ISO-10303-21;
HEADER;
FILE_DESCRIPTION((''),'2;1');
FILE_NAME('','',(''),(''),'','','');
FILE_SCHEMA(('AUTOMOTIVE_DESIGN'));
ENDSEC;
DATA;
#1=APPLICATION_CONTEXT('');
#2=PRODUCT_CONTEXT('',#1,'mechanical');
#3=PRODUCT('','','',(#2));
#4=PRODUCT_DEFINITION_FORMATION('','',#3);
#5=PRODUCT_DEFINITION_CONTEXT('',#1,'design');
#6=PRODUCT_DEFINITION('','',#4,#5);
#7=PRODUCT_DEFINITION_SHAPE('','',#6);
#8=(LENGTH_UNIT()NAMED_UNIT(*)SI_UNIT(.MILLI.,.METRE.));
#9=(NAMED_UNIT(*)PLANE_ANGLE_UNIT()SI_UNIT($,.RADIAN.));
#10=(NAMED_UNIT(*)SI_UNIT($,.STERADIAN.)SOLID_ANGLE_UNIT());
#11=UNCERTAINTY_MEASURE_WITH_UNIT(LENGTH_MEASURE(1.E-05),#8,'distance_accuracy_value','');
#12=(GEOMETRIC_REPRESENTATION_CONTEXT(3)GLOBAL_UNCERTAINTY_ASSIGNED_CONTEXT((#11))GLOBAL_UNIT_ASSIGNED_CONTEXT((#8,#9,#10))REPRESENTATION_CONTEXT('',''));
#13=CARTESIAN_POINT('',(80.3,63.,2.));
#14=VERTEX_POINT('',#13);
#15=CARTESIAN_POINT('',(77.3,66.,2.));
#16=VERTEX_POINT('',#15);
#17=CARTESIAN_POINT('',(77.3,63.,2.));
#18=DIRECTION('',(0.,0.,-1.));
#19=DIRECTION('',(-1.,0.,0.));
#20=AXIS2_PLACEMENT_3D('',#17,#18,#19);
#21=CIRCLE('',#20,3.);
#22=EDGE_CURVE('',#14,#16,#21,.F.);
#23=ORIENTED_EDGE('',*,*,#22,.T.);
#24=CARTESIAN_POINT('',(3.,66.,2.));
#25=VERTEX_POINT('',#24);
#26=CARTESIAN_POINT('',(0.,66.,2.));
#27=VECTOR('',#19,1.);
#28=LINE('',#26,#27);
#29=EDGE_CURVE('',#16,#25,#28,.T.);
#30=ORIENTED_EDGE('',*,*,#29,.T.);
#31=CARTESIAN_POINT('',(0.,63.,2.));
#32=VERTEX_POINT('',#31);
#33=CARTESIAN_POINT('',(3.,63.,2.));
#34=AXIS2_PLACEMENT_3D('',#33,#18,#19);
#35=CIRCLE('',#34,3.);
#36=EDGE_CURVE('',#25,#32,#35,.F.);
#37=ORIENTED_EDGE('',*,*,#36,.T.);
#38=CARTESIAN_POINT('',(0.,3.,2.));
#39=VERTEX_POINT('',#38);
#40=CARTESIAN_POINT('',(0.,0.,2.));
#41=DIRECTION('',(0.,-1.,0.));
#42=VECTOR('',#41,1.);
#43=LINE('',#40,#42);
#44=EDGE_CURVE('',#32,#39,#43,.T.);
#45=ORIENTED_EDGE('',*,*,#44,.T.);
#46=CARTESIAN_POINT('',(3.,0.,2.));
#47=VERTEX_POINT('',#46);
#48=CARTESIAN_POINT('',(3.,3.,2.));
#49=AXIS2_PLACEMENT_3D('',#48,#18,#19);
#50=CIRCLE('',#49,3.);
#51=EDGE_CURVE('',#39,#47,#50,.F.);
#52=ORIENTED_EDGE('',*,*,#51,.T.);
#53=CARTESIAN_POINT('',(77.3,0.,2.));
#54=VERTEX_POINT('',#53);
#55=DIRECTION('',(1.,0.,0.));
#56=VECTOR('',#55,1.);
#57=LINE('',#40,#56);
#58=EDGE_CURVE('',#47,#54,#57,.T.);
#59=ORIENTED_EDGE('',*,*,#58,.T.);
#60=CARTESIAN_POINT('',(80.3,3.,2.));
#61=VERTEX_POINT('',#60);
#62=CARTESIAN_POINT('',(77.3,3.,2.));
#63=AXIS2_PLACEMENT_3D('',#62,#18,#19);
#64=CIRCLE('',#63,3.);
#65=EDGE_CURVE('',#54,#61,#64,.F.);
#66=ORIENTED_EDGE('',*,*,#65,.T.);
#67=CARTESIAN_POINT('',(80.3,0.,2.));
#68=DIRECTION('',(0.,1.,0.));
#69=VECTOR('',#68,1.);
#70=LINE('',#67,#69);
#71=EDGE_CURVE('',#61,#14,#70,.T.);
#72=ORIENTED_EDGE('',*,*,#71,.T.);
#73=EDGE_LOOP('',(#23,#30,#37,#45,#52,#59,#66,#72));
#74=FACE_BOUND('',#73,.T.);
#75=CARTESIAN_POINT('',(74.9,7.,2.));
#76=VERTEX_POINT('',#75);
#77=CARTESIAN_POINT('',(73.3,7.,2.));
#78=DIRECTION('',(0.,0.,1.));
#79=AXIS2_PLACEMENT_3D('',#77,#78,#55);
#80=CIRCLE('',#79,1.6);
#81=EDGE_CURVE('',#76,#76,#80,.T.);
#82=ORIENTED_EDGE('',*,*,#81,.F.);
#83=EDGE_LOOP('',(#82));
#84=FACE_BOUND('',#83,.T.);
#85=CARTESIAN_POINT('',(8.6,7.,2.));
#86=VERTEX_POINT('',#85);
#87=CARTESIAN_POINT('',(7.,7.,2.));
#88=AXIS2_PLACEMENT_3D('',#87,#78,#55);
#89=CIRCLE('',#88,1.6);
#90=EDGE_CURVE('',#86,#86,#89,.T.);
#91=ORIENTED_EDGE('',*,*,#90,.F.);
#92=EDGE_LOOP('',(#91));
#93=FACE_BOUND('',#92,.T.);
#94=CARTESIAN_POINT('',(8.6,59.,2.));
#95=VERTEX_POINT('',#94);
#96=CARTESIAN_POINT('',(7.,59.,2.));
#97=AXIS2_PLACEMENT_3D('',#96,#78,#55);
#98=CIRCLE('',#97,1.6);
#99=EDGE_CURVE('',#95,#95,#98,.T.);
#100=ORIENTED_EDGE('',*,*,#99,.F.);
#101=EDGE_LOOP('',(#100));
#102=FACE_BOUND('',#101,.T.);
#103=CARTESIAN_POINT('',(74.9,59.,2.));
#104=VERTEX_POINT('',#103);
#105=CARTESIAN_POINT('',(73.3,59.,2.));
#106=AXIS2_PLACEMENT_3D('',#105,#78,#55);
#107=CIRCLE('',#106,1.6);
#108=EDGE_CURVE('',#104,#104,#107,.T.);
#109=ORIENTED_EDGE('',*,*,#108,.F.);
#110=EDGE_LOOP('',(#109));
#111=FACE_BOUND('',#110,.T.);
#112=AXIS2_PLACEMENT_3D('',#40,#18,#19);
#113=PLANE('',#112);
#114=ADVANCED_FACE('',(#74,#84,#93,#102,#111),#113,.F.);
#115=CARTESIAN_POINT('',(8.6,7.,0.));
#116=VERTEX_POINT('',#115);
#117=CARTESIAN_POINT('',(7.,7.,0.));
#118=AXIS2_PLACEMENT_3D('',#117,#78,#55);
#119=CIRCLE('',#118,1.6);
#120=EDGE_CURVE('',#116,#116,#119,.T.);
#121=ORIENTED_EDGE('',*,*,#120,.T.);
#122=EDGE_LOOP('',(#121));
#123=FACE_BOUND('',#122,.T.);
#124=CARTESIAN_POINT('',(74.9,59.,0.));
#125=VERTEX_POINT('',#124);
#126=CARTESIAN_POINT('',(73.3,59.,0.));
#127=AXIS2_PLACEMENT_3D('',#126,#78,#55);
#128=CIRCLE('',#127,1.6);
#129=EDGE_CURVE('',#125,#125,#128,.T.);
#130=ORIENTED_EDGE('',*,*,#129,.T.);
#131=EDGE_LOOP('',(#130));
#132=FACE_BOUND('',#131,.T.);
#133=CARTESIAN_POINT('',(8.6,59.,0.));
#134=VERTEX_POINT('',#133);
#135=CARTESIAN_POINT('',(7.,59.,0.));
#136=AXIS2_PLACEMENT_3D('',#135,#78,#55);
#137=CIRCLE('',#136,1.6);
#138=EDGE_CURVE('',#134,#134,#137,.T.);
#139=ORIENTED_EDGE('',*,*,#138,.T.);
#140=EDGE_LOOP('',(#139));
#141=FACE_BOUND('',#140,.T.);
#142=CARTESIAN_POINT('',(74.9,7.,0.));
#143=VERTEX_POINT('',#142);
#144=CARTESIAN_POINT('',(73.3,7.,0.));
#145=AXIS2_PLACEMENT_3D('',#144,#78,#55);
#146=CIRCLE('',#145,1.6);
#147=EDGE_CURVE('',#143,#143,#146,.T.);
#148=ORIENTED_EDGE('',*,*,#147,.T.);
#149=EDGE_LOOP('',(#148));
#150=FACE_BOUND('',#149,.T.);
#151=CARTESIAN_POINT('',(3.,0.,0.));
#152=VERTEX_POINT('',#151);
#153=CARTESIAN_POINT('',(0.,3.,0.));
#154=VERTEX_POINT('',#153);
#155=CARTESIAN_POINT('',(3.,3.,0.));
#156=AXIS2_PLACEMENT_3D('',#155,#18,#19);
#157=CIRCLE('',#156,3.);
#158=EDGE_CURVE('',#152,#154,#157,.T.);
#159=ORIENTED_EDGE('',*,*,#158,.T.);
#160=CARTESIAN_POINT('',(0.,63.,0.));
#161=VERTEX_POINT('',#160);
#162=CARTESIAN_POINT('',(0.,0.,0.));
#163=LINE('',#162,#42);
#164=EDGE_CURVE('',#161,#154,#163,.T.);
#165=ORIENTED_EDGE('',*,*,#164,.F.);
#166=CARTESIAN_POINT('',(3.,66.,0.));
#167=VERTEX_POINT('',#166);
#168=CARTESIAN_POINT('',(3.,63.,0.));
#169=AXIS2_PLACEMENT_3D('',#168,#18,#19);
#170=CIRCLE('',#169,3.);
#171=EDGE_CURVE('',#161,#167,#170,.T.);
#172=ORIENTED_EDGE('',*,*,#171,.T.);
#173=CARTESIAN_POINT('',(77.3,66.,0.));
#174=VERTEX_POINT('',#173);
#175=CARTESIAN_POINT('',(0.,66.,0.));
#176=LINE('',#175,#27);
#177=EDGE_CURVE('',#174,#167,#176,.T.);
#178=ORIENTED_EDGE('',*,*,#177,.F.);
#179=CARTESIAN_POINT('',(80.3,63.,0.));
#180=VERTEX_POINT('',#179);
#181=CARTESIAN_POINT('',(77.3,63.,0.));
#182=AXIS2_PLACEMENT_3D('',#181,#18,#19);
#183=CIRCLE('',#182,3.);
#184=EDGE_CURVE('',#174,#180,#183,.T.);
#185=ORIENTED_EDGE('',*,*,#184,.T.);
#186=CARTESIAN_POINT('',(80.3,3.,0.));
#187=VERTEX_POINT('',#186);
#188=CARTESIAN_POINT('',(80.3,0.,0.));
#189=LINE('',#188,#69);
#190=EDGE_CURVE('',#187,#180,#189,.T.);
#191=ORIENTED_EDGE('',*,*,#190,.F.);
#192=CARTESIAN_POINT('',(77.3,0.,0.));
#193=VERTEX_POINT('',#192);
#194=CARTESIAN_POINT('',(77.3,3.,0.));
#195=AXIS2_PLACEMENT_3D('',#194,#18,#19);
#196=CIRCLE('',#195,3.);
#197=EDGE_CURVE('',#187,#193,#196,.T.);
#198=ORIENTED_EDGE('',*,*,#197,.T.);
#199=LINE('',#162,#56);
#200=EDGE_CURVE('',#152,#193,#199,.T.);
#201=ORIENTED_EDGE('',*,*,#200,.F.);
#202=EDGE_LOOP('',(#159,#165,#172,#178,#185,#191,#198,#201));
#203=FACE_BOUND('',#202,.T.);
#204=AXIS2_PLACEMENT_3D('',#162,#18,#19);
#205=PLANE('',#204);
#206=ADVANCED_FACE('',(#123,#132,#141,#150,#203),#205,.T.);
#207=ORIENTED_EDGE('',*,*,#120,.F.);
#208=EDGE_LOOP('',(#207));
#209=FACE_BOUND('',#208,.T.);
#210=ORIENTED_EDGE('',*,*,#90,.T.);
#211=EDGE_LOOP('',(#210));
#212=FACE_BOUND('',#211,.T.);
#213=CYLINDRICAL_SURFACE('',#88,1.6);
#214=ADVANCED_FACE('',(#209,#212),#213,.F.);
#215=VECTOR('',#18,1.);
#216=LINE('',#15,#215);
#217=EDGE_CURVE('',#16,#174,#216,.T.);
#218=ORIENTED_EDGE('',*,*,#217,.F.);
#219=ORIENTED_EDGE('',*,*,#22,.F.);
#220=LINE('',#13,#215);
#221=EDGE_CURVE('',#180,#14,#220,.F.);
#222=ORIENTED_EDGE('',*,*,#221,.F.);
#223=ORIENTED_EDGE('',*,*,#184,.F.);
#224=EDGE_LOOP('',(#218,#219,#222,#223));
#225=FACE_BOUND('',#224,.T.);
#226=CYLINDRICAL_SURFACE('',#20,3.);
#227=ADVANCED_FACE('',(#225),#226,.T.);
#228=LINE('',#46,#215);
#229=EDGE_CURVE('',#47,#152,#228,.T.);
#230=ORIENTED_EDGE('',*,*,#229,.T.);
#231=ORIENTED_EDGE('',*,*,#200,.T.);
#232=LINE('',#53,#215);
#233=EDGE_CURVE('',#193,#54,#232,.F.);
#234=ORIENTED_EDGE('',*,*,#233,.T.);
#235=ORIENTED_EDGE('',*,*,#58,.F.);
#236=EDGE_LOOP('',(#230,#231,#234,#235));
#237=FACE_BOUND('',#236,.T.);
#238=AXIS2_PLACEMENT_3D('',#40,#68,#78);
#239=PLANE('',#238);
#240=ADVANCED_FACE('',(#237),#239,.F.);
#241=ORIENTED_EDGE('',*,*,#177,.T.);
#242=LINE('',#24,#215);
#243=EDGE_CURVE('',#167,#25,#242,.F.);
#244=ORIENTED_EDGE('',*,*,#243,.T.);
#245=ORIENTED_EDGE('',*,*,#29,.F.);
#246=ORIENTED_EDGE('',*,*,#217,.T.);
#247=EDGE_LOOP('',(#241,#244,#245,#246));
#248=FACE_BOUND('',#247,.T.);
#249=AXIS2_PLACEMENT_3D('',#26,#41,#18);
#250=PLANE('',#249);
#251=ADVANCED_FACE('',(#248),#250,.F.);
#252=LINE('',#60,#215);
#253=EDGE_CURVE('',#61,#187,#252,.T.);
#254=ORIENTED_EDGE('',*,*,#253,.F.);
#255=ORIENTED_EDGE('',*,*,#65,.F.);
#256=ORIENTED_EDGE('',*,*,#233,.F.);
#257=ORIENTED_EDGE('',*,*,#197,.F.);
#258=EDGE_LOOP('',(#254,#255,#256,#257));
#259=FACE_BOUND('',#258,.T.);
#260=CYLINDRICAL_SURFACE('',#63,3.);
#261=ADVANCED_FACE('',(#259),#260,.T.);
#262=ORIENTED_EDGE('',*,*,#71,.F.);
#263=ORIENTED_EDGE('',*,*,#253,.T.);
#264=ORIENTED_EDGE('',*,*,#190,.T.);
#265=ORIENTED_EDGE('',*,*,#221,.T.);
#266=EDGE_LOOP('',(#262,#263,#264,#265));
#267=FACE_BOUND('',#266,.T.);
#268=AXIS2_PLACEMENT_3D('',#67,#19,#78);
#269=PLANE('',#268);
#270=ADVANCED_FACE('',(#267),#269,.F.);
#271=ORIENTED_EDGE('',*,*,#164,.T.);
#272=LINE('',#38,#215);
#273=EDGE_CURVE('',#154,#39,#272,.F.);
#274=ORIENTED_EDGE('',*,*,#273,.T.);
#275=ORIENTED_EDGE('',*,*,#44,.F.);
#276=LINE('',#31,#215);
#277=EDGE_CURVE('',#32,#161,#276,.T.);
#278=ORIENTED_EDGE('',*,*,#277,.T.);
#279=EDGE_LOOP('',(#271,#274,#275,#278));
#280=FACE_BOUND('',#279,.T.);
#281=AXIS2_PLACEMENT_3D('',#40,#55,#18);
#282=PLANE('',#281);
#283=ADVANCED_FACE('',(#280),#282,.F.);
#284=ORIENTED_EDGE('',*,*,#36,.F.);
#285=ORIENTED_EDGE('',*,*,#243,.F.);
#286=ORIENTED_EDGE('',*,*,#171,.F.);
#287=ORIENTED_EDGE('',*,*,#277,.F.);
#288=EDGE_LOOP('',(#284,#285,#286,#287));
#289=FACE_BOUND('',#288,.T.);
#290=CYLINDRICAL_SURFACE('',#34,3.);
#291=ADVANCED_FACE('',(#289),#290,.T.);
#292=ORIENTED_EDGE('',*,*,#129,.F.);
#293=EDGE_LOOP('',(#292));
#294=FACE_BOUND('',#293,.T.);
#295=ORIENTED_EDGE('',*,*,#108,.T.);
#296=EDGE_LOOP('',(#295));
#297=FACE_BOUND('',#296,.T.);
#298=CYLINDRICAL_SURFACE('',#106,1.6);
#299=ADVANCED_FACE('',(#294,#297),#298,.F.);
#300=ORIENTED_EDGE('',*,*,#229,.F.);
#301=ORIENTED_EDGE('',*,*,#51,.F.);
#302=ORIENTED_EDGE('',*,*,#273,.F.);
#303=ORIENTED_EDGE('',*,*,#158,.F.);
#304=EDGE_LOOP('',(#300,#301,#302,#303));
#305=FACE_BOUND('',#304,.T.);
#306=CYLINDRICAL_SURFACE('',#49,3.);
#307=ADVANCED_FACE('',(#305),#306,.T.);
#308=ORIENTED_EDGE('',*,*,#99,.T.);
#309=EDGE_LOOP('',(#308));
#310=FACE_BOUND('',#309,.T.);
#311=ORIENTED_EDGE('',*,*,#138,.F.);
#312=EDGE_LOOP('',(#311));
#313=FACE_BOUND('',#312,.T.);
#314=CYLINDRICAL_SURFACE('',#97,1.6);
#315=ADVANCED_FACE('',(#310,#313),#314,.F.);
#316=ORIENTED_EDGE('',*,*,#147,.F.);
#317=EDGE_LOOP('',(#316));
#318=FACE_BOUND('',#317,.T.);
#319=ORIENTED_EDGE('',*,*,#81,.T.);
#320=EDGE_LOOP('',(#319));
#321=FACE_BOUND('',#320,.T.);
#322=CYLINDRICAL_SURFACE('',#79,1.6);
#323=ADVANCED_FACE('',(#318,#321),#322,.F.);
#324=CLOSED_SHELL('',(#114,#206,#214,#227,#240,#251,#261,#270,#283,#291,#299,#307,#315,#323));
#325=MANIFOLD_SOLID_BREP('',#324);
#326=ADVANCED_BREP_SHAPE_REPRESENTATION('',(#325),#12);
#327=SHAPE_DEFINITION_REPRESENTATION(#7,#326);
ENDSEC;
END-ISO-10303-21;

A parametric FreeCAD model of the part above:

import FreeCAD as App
import Part
import Sketcher
from FreeCAD import Vector
Q = App.Units.Quantity


def edges_at(feature, points):
    """Names of the edges that pass closest to the given points."""
    edges = feature.Shape.Edges
    near = lambda p: min(range(len(edges)), key=lambda i: edges[i].distToShape(Part.Vertex(*p))[0])
    return sorted({f"Edge{near(p) + 1}" for p in points})


def add_polygon(sketch, points):
    """Adds a closed chain of lines whose ends are joined by coincident constraints."""
    first, n = sketch.GeometryCount, len(points)
    for a, b in zip(points, points[1:] + points[:1]):
        sketch.addGeometry(Part.LineSegment(App.Vector(*a, 0), App.Vector(*b, 0)), False)
    for i in range(n):
        sketch.addConstraint(Sketcher.Constraint("Coincident", first + i, 2, first + (i + 1) % n, 1))

doc = App.newDocument("Part")
body = doc.addObject("PartDesign::Body", "Body")

sketch1 = doc.addObject("Sketcher::SketchObject", "Sketch")
body.addObject(sketch1)
sketch1.AttachmentSupport = (doc.XY_Plane, [""])
sketch1.MapMode = "FlatFace"
add_polygon(sketch1, [(0, 66), (0, 0), (80, 0), (80, 66)])
sketch1.addConstraint(Sketcher.Constraint("Vertical", 0))
sketch1.addConstraint(Sketcher.Constraint("Horizontal", 1))
sketch1.addConstraint(Sketcher.Constraint("Vertical", 2))
sketch1.addConstraint(Sketcher.Constraint("Horizontal", 3))
sketch1.addConstraint(Sketcher.Constraint("Coincident", 0, 2, -1, 1))
sketch1.addConstraint(Sketcher.Constraint("DistanceY", 0, 2, 0, 1, Q("66 mm")))
sketch1.addConstraint(Sketcher.Constraint("DistanceX", 1, 1, 1, 2, Q("80.3 mm")))
pad1 = doc.addObject("PartDesign::Pad", "Pad")
body.addObject(pad1)
pad1.Profile = sketch1
pad1.Length = 2

sketch2 = doc.addObject("Sketcher::SketchObject", "Sketch001")
body.addObject(sketch2)
sketch2.AttachmentSupport = (doc.XY_Plane, [""])
sketch2.MapMode = "FlatFace"
sketch2.AttachmentOffset = App.Placement(Vector(0, 0, 2), App.Rotation())
sketch2.addGeometry(Part.Circle(Vector(7, 59, 0), Vector(0, 0, 1), 1.6), False)
sketch2.addGeometry(Part.Circle(Vector(73.3, 59, 0), Vector(0, 0, 1), 1.6), False)
sketch2.addGeometry(Part.Circle(Vector(73.3, 7, 0), Vector(0, 0, 1), 1.6), False)
sketch2.addGeometry(Part.Circle(Vector(7, 7, 0), Vector(0, 0, 1), 1.6), False)
sketch2.addConstraint(Sketcher.Constraint("Equal", 0, 1))
sketch2.addConstraint(Sketcher.Constraint("Equal", 1, 2))
sketch2.addConstraint(Sketcher.Constraint("Equal", 2, 3))
sketch2.addConstraint(Sketcher.Constraint("Horizontal", 0, 3, 1, 3))
sketch2.addConstraint(Sketcher.Constraint("Horizontal", 2, 3, 3, 3))
sketch2.addConstraint(Sketcher.Constraint("Vertical", 1, 3, 2, 3))
sketch2.addConstraint(Sketcher.Constraint("Vertical", 0, 3, 3, 3))
sketch2.addConstraint(Sketcher.Constraint("Diameter", 0, Q("3.2 mm")))
sketch2.addConstraint(Sketcher.Constraint("DistanceX", -1, 1, 0, 3, Q("7 mm")))
sketch2.addConstraint(Sketcher.Constraint("DistanceY", -1, 1, 0, 3, Q("59 mm")))
sketch2.addConstraint(Sketcher.Constraint("DistanceY", -1, 1, 2, 3, Q("7 mm")))
sketch2.addConstraint(Sketcher.Constraint("DistanceX", -1, 1, 1, 3, Q("73.3 mm")))
doc.recompute()
hole = doc.addObject("PartDesign::Hole", "Hole")
body.addObject(hole)
hole.Profile = sketch2
hole.ThreadType = "None"
hole.Diameter = 3.2
hole.DepthType = "ThroughAll"
doc.recompute()

fillet = doc.addObject("PartDesign::Fillet", "Fillet")
body.addObject(fillet)
fillet.Base = (hole, edges_at(hole, [
    (0, 66, 1),
    (80.3, 66, 1),
    (80.3, 0, 1),
    (0, 0, 1),
]))
fillet.Radius = 3

doc.recompute()
